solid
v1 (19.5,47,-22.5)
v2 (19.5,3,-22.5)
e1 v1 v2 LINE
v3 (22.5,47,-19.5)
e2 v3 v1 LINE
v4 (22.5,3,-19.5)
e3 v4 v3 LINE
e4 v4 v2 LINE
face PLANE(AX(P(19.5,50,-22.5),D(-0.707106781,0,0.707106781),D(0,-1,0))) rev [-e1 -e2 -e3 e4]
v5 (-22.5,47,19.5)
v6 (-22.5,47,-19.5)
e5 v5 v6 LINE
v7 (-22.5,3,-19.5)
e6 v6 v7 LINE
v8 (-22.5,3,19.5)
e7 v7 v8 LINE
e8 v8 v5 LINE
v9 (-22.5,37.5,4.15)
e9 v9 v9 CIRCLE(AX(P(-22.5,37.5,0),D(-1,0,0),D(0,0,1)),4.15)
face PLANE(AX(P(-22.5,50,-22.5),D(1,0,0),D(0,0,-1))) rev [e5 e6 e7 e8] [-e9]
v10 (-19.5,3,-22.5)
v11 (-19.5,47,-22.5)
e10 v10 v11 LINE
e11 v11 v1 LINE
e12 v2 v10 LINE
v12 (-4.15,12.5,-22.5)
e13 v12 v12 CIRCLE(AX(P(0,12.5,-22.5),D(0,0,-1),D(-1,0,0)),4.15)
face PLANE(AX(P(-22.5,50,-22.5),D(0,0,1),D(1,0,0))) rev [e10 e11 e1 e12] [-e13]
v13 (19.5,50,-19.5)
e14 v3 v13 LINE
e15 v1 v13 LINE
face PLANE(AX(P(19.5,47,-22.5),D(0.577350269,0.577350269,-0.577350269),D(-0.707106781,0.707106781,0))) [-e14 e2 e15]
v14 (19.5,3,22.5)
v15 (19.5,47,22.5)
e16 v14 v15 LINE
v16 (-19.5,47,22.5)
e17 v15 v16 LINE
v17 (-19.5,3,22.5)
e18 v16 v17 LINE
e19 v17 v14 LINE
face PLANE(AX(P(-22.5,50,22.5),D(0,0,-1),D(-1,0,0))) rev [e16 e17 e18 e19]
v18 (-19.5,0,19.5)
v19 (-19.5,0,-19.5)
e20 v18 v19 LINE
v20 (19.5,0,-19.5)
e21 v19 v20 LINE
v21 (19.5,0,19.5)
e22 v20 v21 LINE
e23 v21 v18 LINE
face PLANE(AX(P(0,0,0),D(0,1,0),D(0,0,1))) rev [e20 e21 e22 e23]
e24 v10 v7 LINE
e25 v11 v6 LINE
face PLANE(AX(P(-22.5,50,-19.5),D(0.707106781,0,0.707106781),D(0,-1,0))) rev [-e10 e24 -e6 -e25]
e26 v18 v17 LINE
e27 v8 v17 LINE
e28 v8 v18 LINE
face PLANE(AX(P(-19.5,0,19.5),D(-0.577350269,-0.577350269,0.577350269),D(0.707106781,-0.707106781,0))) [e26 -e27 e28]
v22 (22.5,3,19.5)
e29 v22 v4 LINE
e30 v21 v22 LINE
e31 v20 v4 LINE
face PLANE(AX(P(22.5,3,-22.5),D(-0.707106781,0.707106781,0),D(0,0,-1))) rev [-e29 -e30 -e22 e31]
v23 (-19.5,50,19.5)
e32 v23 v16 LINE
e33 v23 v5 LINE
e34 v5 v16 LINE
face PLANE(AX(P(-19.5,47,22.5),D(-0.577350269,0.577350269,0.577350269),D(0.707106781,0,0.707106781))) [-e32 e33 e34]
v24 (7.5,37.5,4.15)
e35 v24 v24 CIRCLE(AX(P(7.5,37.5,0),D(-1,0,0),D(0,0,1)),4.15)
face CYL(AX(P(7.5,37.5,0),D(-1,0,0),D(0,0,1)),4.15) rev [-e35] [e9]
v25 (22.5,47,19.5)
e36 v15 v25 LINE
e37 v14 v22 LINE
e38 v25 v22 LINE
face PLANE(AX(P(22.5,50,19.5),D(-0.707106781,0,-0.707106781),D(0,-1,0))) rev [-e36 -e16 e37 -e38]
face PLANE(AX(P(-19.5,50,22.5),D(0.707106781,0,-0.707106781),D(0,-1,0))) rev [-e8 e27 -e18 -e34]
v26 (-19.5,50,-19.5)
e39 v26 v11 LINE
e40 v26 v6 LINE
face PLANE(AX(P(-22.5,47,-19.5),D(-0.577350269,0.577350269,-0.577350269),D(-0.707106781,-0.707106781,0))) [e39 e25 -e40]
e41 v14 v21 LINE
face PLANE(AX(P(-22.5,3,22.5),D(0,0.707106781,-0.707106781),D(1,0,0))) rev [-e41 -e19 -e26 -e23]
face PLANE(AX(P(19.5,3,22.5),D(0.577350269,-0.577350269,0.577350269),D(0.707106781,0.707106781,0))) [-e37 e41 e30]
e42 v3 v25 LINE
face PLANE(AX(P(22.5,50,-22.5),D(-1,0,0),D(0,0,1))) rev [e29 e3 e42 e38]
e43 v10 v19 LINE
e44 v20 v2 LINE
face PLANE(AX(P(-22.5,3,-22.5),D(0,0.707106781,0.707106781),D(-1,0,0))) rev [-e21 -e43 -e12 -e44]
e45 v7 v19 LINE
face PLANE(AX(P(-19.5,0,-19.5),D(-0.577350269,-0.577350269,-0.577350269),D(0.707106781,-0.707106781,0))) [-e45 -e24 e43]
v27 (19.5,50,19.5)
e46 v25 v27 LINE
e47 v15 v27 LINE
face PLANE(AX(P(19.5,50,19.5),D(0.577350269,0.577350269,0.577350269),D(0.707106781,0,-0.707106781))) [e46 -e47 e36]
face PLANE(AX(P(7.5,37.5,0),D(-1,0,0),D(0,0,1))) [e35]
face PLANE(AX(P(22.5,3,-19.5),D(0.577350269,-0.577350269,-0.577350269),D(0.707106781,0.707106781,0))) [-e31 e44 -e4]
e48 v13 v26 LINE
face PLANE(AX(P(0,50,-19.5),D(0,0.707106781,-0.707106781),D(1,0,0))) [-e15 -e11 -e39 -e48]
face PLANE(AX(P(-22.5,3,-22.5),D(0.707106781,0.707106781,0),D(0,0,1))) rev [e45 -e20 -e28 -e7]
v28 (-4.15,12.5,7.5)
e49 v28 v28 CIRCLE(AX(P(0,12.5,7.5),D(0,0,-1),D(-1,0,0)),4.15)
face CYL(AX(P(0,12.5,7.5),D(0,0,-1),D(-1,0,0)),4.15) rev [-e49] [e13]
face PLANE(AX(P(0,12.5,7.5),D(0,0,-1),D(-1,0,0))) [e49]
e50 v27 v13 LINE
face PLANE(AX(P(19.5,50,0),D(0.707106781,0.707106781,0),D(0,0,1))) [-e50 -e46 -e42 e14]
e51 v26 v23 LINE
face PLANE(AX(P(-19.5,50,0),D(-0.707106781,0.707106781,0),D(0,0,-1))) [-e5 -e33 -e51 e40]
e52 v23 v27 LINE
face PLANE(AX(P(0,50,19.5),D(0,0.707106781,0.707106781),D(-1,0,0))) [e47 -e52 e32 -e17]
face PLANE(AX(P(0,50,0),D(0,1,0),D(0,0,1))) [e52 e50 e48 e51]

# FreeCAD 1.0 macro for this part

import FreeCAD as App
import Part
import Sketcher

V = App.Vector
Q = App.Units.Quantity


def edges_at(feature, points):
    """Names of the edges that pass closest to the given points."""
    edges = feature.Shape.Edges
    near = lambda p: min(range(len(edges)), key=lambda i: edges[i].distToShape(Part.Vertex(*p))[0])
    return sorted({f"Edge{near(p) + 1}" for p in points})


def add_polygon(sketch, points):
    """Adds a closed chain of lines whose ends are joined by coincident constraints."""
    first, n = sketch.GeometryCount, len(points)
    for a, b in zip(points, points[1:] + points[:1]):
        sketch.addGeometry(Part.LineSegment(App.Vector(*a, 0), App.Vector(*b, 0)), False)
    for i in range(n):
        sketch.addConstraint(Sketcher.Constraint("Coincident", first + i, 2, first + (i + 1) % n, 1))

doc = App.newDocument("Part")
body = doc.addObject("PartDesign::Body", "Body")

# Sketch on XZ plane
sketch1 = doc.addObject("Sketcher::SketchObject", "Sketch")
body.addObject(sketch1)
sketch1.AttachmentSupport = (doc.XZ_Plane, [""])
sketch1.MapMode = "FlatFace"
add_polygon(sketch1, [(-22, -22), (-22, 22), (22, 22), (22, -22)])  # lines 0-3
sketch1.addConstraint([
    Sketcher.Constraint("Vertical", 0),
    Sketcher.Constraint("Horizontal", 1),
    Sketcher.Constraint("Vertical", 2),
    Sketcher.Constraint("Horizontal", 3),
    Sketcher.Constraint("Symmetric", 0, 2, 2, 2, -1, 1),
    Sketcher.Constraint("Equal", 3, 0),
    Sketcher.Constraint("DistanceX", 1, 1, 1, 2, Q("45 mm")),
])
pad1 = doc.addObject("PartDesign::Pad", "Pad")
body.addObject(pad1)
pad1.Profile = sketch1
pad1.Length = 50
pad1.Reversed = True

# Sketch on XY plane
sketch2 = doc.addObject("Sketcher::SketchObject", "Sketch001")
body.addObject(sketch2)
sketch2.AttachmentSupport = (doc.XY_Plane, [""])
sketch2.MapMode = "FlatFace"
sketch2.AttachmentOffset = App.Placement(V(0, 0, -22.5), App.Rotation())
sketch2.addGeometry(Part.Circle(V(0, 12.5, 0), V(0, 0, 1), 4.2), False)
sketch2.addConstraint([
    Sketcher.Constraint("PointOnObject", 0, 3, -2),
    Sketcher.Constraint("Diameter", 0, Q("8.3 mm")),
    Sketcher.Constraint("DistanceY", -1, 1, 0, 3, Q("12.5 mm")),
])
pocket1 = doc.addObject("PartDesign::Pocket", "Pocket")
body.addObject(pocket1)
pocket1.Profile = sketch2
pocket1.Length = 30
pocket1.Reversed = True

# Sketch on YZ plane
sketch3 = doc.addObject("Sketcher::SketchObject", "Sketch002")
body.addObject(sketch3)
sketch3.AttachmentSupport = (doc.YZ_Plane, [""])
sketch3.MapMode = "FlatFace"
sketch3.AttachmentOffset = App.Placement(V(0, 0, -22.5), App.Rotation())
sketch3.addGeometry(Part.Circle(V(37.5, 0, 0), V(0, 0, 1), 4.2), False)
sketch3.addConstraint([
    Sketcher.Constraint("PointOnObject", 0, 3, -1),
    Sketcher.Constraint("Diameter", 0, Q("8.3 mm")),
    Sketcher.Constraint("DistanceX", -1, 1, 0, 3, Q("37.5 mm")),
])
pocket2 = doc.addObject("PartDesign::Pocket", "Pocket001")
body.addObject(pocket2)
pocket2.Profile = sketch3
pocket2.Length = 30
pocket2.Reversed = True
doc.recompute()

chamfer = doc.addObject("PartDesign::Chamfer", "Chamfer")
body.addObject(chamfer)
chamfer.Base = (pocket2, edges_at(pocket2, [
    (-22.5, 50, 0),
    (0, 50, 22.5),
    (22.5, 50, 0),
    (0, 0, 22.5),
    (-22.5, 0, 0),
    (0, 0, -22.5),
    (22.5, 0, 0),
    (22.5, 25, 22.5),
    (-22.5, 25, 22.5),
    (-22.5, 25, -22.5),
    (22.5, 25, -22.5),
    (0, 50, -22.5),
]))
chamfer.Size = 3

doc.recompute()
